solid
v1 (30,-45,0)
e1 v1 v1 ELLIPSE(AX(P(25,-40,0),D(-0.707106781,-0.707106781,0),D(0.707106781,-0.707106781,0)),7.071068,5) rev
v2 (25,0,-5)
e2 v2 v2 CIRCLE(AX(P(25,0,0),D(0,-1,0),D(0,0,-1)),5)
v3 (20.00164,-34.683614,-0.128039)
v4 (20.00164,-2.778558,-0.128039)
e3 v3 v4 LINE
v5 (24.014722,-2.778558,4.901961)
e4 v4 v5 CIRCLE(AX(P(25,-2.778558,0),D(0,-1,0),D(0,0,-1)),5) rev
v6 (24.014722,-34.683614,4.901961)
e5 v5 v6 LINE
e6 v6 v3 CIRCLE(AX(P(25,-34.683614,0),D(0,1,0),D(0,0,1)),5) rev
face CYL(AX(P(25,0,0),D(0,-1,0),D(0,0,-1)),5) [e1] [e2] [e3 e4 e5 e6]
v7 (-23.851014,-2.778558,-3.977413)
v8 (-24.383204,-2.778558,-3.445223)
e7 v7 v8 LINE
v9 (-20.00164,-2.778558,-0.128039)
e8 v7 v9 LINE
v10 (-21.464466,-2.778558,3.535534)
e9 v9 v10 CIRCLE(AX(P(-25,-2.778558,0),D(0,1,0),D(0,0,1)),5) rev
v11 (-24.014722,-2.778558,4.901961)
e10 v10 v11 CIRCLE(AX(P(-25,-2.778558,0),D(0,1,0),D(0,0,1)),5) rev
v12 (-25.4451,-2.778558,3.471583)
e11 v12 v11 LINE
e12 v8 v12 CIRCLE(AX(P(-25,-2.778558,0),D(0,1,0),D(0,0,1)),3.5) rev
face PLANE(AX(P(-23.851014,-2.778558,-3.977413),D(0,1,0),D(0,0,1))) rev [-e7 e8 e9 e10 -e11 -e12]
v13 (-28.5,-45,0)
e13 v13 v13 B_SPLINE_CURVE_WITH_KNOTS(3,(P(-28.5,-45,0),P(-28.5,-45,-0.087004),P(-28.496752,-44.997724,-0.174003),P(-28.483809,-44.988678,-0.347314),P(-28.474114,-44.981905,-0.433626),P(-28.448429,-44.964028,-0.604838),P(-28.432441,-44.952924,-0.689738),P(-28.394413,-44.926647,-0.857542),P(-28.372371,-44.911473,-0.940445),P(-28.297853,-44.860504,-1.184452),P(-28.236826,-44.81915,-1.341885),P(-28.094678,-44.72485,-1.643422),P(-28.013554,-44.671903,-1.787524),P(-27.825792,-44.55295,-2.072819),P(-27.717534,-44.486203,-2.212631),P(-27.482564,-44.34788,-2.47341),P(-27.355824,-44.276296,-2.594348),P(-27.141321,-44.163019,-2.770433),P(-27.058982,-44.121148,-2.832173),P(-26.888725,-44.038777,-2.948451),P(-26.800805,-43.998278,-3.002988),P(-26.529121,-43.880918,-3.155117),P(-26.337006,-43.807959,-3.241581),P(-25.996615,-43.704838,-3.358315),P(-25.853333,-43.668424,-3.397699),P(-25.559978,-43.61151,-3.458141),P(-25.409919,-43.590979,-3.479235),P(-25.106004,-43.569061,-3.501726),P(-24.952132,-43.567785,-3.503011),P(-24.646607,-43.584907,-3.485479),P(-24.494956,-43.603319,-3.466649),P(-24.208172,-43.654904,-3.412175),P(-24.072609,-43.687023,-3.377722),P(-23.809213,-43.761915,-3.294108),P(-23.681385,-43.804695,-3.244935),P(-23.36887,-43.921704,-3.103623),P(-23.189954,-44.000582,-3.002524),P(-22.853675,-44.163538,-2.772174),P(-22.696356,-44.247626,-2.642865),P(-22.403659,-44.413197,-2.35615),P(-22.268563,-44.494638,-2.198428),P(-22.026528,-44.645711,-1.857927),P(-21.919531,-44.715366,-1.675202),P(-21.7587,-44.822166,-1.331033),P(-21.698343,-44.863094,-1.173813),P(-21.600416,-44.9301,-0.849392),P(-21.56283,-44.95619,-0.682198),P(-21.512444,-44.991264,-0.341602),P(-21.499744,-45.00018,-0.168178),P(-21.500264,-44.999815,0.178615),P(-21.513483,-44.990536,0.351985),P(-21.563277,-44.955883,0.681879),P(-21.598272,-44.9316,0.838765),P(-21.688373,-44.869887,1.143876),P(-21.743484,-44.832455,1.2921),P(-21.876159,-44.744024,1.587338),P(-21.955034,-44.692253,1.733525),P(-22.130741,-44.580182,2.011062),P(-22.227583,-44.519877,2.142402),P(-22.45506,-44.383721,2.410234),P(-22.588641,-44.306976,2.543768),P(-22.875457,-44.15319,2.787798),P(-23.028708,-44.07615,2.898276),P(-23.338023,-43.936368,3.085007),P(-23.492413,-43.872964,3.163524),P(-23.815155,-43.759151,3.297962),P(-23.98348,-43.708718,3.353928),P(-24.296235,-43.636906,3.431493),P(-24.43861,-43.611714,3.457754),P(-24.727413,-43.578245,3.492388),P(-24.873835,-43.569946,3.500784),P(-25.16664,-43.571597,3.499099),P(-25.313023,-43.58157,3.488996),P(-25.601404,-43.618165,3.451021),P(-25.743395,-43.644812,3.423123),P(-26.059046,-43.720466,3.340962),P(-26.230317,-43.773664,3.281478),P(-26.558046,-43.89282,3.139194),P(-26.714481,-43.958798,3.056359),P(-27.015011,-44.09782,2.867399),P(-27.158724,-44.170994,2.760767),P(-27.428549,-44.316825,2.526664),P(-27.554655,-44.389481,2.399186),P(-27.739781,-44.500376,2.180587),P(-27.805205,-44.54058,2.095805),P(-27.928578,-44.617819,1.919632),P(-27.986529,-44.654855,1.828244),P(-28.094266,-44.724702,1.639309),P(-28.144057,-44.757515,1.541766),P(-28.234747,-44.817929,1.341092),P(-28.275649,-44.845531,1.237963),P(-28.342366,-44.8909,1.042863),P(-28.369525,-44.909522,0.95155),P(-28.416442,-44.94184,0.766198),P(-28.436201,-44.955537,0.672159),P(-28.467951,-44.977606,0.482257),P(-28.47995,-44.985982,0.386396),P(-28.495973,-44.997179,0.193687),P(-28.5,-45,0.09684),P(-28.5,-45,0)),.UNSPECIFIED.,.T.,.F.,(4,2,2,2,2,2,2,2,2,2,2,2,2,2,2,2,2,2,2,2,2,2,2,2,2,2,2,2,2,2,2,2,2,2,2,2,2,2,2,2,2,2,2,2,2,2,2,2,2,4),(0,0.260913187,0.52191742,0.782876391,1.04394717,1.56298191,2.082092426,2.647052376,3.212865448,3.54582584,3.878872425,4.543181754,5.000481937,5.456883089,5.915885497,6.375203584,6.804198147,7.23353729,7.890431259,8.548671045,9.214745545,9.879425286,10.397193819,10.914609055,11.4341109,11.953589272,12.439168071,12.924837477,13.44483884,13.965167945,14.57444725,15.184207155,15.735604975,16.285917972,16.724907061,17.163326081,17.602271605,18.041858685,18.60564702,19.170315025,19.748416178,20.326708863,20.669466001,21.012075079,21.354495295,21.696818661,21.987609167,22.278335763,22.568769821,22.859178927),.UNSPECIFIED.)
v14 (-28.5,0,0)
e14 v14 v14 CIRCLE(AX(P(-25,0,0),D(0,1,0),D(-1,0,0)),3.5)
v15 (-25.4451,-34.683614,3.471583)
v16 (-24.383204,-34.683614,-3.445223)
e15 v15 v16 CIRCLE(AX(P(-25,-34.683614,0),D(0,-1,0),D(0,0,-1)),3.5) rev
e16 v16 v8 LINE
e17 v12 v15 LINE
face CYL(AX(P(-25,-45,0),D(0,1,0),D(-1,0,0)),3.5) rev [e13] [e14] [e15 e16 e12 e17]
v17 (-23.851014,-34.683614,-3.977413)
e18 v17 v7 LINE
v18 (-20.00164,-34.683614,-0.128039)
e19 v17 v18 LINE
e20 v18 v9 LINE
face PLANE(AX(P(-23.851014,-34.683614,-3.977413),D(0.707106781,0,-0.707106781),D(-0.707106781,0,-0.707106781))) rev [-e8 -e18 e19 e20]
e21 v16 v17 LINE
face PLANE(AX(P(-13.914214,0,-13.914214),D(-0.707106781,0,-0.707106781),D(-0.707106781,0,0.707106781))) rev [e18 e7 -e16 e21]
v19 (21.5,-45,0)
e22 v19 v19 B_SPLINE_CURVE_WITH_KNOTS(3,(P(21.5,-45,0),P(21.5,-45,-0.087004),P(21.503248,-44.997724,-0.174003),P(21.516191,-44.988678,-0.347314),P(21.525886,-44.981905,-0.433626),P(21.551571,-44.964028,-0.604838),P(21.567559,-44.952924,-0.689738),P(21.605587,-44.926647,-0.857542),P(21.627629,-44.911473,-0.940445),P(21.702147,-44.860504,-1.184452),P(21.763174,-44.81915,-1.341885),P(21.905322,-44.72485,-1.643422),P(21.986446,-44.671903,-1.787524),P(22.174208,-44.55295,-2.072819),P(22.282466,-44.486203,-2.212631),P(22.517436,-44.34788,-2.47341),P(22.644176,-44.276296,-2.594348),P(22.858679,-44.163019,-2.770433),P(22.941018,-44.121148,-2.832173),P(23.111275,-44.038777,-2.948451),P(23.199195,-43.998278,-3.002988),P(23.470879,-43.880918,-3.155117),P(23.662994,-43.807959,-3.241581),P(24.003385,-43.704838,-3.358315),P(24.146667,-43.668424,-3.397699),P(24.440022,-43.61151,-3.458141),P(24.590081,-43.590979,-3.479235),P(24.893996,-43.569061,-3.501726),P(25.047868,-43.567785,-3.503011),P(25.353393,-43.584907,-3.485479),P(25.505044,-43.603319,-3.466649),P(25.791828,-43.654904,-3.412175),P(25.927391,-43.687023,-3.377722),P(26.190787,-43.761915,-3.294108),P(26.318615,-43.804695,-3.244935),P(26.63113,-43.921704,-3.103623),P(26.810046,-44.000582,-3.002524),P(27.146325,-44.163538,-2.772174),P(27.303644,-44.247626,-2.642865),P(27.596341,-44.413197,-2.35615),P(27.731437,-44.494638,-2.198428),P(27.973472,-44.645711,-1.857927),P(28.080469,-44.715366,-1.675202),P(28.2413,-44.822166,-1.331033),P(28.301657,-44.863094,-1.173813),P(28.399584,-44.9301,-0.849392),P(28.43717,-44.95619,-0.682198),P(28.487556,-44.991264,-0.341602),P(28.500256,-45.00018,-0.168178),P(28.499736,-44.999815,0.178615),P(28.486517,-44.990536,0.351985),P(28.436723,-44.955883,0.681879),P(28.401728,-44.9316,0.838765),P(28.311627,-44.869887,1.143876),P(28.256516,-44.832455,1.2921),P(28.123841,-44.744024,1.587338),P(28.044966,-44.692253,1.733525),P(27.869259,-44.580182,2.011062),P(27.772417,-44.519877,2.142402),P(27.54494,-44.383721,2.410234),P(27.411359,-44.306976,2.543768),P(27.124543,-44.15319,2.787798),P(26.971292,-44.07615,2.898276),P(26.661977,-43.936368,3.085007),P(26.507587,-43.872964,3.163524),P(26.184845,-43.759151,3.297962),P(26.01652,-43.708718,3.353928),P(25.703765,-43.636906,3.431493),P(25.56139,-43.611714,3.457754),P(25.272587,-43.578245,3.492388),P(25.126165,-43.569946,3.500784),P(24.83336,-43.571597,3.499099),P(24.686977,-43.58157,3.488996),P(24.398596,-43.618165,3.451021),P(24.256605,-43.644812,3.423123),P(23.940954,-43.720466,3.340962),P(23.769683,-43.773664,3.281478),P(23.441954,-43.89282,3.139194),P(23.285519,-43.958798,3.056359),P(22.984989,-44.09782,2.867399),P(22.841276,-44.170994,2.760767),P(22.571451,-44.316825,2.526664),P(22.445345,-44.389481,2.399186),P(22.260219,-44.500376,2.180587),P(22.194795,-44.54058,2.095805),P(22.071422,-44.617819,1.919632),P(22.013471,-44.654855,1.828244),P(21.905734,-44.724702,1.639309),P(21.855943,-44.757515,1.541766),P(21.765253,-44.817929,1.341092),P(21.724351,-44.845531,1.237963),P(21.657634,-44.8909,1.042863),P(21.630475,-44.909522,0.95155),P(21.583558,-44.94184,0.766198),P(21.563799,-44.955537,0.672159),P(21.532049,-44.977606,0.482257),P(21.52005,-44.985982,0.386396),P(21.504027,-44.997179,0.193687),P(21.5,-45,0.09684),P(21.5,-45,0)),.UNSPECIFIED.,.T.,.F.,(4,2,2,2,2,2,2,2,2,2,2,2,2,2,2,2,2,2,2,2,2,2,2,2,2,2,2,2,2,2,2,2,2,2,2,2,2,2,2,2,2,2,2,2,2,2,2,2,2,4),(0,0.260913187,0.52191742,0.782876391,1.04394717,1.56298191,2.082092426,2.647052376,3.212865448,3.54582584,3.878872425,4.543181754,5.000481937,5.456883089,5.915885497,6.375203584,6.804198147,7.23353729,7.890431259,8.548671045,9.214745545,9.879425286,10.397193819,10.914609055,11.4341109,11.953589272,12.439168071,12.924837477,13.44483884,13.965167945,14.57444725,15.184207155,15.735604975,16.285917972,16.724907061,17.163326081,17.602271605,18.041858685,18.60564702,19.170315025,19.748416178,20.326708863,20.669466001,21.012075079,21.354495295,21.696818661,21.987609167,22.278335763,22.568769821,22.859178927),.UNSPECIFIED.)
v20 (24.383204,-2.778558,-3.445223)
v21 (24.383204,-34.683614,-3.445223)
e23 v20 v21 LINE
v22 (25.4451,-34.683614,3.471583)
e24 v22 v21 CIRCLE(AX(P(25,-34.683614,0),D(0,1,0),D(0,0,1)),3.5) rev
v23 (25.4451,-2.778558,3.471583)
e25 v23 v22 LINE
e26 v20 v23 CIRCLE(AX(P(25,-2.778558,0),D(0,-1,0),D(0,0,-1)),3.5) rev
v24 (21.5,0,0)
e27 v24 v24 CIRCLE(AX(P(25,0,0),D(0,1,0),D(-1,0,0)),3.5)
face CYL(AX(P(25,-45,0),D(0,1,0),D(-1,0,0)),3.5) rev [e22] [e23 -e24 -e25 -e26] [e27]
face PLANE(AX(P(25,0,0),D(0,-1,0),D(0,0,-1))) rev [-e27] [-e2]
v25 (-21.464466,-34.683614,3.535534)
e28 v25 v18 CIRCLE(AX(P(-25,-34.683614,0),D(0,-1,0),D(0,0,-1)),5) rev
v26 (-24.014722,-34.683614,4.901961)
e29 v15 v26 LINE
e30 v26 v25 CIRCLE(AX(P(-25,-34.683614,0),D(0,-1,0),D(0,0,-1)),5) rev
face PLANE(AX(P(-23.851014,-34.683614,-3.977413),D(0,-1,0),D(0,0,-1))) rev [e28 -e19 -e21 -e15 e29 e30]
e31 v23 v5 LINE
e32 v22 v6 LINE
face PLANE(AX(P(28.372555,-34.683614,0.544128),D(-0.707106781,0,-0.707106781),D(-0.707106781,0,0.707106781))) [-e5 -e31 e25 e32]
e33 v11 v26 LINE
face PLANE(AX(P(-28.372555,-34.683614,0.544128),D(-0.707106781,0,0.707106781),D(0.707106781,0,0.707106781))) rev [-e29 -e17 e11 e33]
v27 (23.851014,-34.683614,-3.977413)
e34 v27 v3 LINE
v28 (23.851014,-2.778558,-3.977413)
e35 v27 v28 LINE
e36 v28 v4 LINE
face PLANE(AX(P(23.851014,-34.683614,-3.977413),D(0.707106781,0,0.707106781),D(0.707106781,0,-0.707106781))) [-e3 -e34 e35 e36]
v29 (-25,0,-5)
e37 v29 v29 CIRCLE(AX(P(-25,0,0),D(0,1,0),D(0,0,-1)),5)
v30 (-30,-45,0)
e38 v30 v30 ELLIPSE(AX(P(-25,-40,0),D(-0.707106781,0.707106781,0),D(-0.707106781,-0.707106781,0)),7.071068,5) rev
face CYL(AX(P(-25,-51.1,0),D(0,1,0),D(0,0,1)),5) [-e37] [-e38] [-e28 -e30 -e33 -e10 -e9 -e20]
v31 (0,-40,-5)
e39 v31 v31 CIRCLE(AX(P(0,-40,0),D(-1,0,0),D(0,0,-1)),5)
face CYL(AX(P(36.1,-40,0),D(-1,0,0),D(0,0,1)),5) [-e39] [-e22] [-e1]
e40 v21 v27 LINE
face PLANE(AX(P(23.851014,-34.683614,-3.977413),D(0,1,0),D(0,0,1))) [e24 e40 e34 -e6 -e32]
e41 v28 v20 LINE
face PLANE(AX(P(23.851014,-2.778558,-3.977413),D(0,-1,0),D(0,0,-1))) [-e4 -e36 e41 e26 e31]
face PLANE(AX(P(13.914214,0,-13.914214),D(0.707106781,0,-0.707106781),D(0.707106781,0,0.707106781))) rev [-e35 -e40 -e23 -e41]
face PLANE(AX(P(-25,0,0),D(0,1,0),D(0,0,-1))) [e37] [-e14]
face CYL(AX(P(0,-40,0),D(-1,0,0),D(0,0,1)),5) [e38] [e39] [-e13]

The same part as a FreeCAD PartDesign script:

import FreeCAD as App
import Part
import Sketcher

V = App.Vector
Q = App.Units.Quantity

doc = App.newDocument("Part")
body = doc.addObject("PartDesign::Body", "Body")

# Sketch on XZ plane
sketch1 = body.newObject("Sketcher::SketchObject", "Sketch")
sketch1.AttachmentSupport = (doc.getObject("XZ_Plane"), [""])
sketch1.MapMode = "FlatFace"
sketch1.addGeometry(Part.Circle(V(-25, 0, 0), V(0, 0, 1), 5), False)
sketch1.addConstraint(Sketcher.Constraint("PointOnObject", 0, 3, -1))
sketch1.addConstraint(Sketcher.Constraint("Diameter", 0, Q("10 mm")))
sketch1.addConstraint(Sketcher.Constraint("DistanceX", 0, 3, -1, 1, Q("25 mm")))

# Sketch on XY plane
sketch2 = body.newObject("Sketcher::SketchObject", "Sketch001")
sketch2.AttachmentSupport = (doc.getObject("XY_Plane"), [""])
sketch2.MapMode = "FlatFace"
sketch2.addGeometry(Part.LineSegment(V(-25, 0, 0), V(-25, -40, 0)), False)
sketch2.addGeometry(Part.LineSegment(V(-25, -40, 0), V(25, -40, 0)), False)
sketch2.addGeometry(Part.LineSegment(V(25, -40, 0), V(25, 0, 0)), False)
sketch2.addConstraint(Sketcher.Constraint("Coincident", 0, 2, 1, 1))
sketch2.addConstraint(Sketcher.Constraint("Coincident", 1, 2, 2, 1))
sketch2.addConstraint(Sketcher.Constraint("Vertical", 0))
sketch2.addConstraint(Sketcher.Constraint("Horizontal", 1))
sketch2.addConstraint(Sketcher.Constraint("Vertical", 2))
sketch2.addConstraint(Sketcher.Constraint("Symmetric", 0, 1, 2, 2, -1, 1))
sketch2.addConstraint(Sketcher.Constraint("PointOnObject", 0, 1, -1))
sketch2.addConstraint(Sketcher.Constraint("DistanceX", 1, 1, 1, 2, Q("50 mm")))
sketch2.addConstraint(Sketcher.Constraint("DistanceY", 0, 2, 0, 1, Q("40 mm")))
doc.recompute()

additivepipe = body.newObject("PartDesign::AdditivePipe", "AdditivePipe")
additivepipe.Profile = sketch1
additivepipe.Spine = (sketch2, ["Edge1", "Edge2", "Edge3"])
additivepipe.Transition = "Right corner"

# Sketch on XZ plane
sketch3 = body.newObject("Sketcher::SketchObject", "Sketch002")
sketch3.AttachmentSupport = (doc.getObject("XZ_Plane"), [""])
sketch3.MapMode = "FlatFace"
sketch3.addGeometry(Part.Circle(V(-25, 0, 0), V(0, 0, 1), 3.5), False)
sketch3.addGeometry(Part.Circle(V(25, 0, 0), V(0, 0, 1), 3.5), False)
sketch3.addConstraint(Sketcher.Constraint("Equal", 0, 1))
sketch3.addConstraint(Sketcher.Constraint("Symmetric", 0, 3, 1, 3, -1, 1))
sketch3.addConstraint(Sketcher.Constraint("PointOnObject", 0, 3, -1))
sketch3.addConstraint(Sketcher.Constraint("Diameter", 0, Q("7 mm")))
sketch3.addConstraint(Sketcher.Constraint("DistanceX", 0, 3, -1, 1, Q("25 mm")))
pocket1 = body.newObject("PartDesign::Pocket", "Pocket")
pocket1.Profile = sketch3
pocket1.Type = "ThroughAll"
pocket1.Reversed = True

# Sketch on an angled plane
sketch4 = body.newObject("Sketcher::SketchObject", "Sketch003")
sketch4.Placement = App.Placement(V(-8.964466, 0, -8.964466), App.Rotation(V(0, 1, 0), V(-0.707106781, 0, 0.707106781), V(0.707106781, 0, 0.707106781), "ZXY"))
sketch4.addGeometry(Part.LineSegment(V(-34.683614, 20.447183, 0), V(-34.683614, 14.052758, 0)), False)
sketch4.addGeometry(Part.LineSegment(V(-34.683614, 14.052758, 0), V(-2.778558, 14.052758, 0)), False)
sketch4.addGeometry(Part.LineSegment(V(-2.778558, 14.052758, 0), V(-2.778558, 20.447183, 0)), False)
sketch4.addGeometry(Part.LineSegment(V(-2.778558, 20.447183, 0), V(-34.683614, 20.447183, 0)), False)
sketch4.addConstraint(Sketcher.Constraint("Coincident", 0, 2, 1, 1))
sketch4.addConstraint(Sketcher.Constraint("Coincident", 1, 2, 2, 1))
sketch4.addConstraint(Sketcher.Constraint("Coincident", 2, 2, 3, 1))
sketch4.addConstraint(Sketcher.Constraint("Coincident", 3, 2, 0, 1))
sketch4.addConstraint(Sketcher.Constraint("Vertical", 0))
sketch4.addConstraint(Sketcher.Constraint("Horizontal", 1))
sketch4.addConstraint(Sketcher.Constraint("Vertical", 2))
sketch4.addConstraint(Sketcher.Constraint("Horizontal", 3))
sketch4.addConstraint(Sketcher.Constraint("DistanceX", 1, 1, 1, 2, Q("31.905056 mm")))
sketch4.addConstraint(Sketcher.Constraint("DistanceY", 0, 2, 0, 1, Q("6.394425 mm")))
sketch4.addConstraint(Sketcher.Constraint("DistanceX", 1, 2, -1, 1, Q("2.778558 mm")))
sketch4.addConstraint(Sketcher.Constraint("DistanceY", -1, 1, 0, 2, Q("14.052758 mm")))
pocket2 = body.newObject("PartDesign::Pocket", "Pocket001")
pocket2.Profile = sketch4
pocket2.Length = 7
doc.recompute()

datumplane = body.newObject("PartDesign::Plane", "DatumPlane")
datumplane.Placement = App.Placement(V(-8.964466, 0, -8.964466), App.Rotation(V(-0.707106781, 0, 0.707106781), V(0, -1, 0), V(0.707106781, 0, 0.707106781), "ZXY"))
mirrored = body.newObject("PartDesign::Mirrored", "Mirrored")
mirrored.Originals = [pocket2]
mirrored.MirrorPlane = (datumplane, [""])
body.Tip = mirrored
doc.recompute()

mirrored2 = body.newObject("PartDesign::Mirrored", "Mirrored001")
mirrored2.Originals = [pocket2]
mirrored2.MirrorPlane = (doc.getObject("YZ_Plane"), [""])
body.Tip = mirrored2

# Sketch on an angled plane
sketch5 = body.newObject("Sketcher::SketchObject", "Sketch004")
sketch5.Placement = App.Placement(V(8.964466, 0, -8.964466), App.Rotation(V(0, 1, 0), V(0.707106781, 0, 0.707106781), V(0.707106781, 0, -0.707106781), "ZXY"))
sketch5.addGeometry(Part.LineSegment(V(-34.683614, 20.447183, 0), V(-34.683614, 14.052758, 0)), False)
sketch5.addGeometry(Part.LineSegment(V(-34.683614, 14.052758, 0), V(-2.778558, 14.052758, 0)), False)
sketch5.addGeometry(Part.LineSegment(V(-2.778558, 14.052758, 0), V(-2.778558, 20.447183, 0)), False)
sketch5.addGeometry(Part.LineSegment(V(-2.778558, 20.447183, 0), V(-34.683614, 20.447183, 0)), False)
sketch5.addConstraint(Sketcher.Constraint("Coincident", 0, 2, 1, 1))
sketch5.addConstraint(Sketcher.Constraint("Coincident", 1, 2, 2, 1))
sketch5.addConstraint(Sketcher.Constraint("Coincident", 2, 2, 3, 1))
sketch5.addConstraint(Sketcher.Constraint("Coincident", 3, 2, 0, 1))
sketch5.addConstraint(Sketcher.Constraint("Vertical", 0))
sketch5.addConstraint(Sketcher.Constraint("Horizontal", 1))
sketch5.addConstraint(Sketcher.Constraint("Vertical", 2))
sketch5.addConstraint(Sketcher.Constraint("Horizontal", 3))
sketch5.addConstraint(Sketcher.Constraint("DistanceX", 1, 1, 1, 2, Q("31.905056 mm")))
sketch5.addConstraint(Sketcher.Constraint("DistanceY", 0, 2, 0, 1, Q("6.394425 mm")))
sketch5.addConstraint(Sketcher.Constraint("DistanceX", 1, 2, -1, 1, Q("2.778558 mm")))
sketch5.addConstraint(Sketcher.Constraint("DistanceY", -1, 1, 0, 2, Q("14.052758 mm")))
pocket3 = body.newObject("PartDesign::Pocket", "Pocket002")
pocket3.Profile = sketch5
pocket3.Length = 7

doc.recompute()
